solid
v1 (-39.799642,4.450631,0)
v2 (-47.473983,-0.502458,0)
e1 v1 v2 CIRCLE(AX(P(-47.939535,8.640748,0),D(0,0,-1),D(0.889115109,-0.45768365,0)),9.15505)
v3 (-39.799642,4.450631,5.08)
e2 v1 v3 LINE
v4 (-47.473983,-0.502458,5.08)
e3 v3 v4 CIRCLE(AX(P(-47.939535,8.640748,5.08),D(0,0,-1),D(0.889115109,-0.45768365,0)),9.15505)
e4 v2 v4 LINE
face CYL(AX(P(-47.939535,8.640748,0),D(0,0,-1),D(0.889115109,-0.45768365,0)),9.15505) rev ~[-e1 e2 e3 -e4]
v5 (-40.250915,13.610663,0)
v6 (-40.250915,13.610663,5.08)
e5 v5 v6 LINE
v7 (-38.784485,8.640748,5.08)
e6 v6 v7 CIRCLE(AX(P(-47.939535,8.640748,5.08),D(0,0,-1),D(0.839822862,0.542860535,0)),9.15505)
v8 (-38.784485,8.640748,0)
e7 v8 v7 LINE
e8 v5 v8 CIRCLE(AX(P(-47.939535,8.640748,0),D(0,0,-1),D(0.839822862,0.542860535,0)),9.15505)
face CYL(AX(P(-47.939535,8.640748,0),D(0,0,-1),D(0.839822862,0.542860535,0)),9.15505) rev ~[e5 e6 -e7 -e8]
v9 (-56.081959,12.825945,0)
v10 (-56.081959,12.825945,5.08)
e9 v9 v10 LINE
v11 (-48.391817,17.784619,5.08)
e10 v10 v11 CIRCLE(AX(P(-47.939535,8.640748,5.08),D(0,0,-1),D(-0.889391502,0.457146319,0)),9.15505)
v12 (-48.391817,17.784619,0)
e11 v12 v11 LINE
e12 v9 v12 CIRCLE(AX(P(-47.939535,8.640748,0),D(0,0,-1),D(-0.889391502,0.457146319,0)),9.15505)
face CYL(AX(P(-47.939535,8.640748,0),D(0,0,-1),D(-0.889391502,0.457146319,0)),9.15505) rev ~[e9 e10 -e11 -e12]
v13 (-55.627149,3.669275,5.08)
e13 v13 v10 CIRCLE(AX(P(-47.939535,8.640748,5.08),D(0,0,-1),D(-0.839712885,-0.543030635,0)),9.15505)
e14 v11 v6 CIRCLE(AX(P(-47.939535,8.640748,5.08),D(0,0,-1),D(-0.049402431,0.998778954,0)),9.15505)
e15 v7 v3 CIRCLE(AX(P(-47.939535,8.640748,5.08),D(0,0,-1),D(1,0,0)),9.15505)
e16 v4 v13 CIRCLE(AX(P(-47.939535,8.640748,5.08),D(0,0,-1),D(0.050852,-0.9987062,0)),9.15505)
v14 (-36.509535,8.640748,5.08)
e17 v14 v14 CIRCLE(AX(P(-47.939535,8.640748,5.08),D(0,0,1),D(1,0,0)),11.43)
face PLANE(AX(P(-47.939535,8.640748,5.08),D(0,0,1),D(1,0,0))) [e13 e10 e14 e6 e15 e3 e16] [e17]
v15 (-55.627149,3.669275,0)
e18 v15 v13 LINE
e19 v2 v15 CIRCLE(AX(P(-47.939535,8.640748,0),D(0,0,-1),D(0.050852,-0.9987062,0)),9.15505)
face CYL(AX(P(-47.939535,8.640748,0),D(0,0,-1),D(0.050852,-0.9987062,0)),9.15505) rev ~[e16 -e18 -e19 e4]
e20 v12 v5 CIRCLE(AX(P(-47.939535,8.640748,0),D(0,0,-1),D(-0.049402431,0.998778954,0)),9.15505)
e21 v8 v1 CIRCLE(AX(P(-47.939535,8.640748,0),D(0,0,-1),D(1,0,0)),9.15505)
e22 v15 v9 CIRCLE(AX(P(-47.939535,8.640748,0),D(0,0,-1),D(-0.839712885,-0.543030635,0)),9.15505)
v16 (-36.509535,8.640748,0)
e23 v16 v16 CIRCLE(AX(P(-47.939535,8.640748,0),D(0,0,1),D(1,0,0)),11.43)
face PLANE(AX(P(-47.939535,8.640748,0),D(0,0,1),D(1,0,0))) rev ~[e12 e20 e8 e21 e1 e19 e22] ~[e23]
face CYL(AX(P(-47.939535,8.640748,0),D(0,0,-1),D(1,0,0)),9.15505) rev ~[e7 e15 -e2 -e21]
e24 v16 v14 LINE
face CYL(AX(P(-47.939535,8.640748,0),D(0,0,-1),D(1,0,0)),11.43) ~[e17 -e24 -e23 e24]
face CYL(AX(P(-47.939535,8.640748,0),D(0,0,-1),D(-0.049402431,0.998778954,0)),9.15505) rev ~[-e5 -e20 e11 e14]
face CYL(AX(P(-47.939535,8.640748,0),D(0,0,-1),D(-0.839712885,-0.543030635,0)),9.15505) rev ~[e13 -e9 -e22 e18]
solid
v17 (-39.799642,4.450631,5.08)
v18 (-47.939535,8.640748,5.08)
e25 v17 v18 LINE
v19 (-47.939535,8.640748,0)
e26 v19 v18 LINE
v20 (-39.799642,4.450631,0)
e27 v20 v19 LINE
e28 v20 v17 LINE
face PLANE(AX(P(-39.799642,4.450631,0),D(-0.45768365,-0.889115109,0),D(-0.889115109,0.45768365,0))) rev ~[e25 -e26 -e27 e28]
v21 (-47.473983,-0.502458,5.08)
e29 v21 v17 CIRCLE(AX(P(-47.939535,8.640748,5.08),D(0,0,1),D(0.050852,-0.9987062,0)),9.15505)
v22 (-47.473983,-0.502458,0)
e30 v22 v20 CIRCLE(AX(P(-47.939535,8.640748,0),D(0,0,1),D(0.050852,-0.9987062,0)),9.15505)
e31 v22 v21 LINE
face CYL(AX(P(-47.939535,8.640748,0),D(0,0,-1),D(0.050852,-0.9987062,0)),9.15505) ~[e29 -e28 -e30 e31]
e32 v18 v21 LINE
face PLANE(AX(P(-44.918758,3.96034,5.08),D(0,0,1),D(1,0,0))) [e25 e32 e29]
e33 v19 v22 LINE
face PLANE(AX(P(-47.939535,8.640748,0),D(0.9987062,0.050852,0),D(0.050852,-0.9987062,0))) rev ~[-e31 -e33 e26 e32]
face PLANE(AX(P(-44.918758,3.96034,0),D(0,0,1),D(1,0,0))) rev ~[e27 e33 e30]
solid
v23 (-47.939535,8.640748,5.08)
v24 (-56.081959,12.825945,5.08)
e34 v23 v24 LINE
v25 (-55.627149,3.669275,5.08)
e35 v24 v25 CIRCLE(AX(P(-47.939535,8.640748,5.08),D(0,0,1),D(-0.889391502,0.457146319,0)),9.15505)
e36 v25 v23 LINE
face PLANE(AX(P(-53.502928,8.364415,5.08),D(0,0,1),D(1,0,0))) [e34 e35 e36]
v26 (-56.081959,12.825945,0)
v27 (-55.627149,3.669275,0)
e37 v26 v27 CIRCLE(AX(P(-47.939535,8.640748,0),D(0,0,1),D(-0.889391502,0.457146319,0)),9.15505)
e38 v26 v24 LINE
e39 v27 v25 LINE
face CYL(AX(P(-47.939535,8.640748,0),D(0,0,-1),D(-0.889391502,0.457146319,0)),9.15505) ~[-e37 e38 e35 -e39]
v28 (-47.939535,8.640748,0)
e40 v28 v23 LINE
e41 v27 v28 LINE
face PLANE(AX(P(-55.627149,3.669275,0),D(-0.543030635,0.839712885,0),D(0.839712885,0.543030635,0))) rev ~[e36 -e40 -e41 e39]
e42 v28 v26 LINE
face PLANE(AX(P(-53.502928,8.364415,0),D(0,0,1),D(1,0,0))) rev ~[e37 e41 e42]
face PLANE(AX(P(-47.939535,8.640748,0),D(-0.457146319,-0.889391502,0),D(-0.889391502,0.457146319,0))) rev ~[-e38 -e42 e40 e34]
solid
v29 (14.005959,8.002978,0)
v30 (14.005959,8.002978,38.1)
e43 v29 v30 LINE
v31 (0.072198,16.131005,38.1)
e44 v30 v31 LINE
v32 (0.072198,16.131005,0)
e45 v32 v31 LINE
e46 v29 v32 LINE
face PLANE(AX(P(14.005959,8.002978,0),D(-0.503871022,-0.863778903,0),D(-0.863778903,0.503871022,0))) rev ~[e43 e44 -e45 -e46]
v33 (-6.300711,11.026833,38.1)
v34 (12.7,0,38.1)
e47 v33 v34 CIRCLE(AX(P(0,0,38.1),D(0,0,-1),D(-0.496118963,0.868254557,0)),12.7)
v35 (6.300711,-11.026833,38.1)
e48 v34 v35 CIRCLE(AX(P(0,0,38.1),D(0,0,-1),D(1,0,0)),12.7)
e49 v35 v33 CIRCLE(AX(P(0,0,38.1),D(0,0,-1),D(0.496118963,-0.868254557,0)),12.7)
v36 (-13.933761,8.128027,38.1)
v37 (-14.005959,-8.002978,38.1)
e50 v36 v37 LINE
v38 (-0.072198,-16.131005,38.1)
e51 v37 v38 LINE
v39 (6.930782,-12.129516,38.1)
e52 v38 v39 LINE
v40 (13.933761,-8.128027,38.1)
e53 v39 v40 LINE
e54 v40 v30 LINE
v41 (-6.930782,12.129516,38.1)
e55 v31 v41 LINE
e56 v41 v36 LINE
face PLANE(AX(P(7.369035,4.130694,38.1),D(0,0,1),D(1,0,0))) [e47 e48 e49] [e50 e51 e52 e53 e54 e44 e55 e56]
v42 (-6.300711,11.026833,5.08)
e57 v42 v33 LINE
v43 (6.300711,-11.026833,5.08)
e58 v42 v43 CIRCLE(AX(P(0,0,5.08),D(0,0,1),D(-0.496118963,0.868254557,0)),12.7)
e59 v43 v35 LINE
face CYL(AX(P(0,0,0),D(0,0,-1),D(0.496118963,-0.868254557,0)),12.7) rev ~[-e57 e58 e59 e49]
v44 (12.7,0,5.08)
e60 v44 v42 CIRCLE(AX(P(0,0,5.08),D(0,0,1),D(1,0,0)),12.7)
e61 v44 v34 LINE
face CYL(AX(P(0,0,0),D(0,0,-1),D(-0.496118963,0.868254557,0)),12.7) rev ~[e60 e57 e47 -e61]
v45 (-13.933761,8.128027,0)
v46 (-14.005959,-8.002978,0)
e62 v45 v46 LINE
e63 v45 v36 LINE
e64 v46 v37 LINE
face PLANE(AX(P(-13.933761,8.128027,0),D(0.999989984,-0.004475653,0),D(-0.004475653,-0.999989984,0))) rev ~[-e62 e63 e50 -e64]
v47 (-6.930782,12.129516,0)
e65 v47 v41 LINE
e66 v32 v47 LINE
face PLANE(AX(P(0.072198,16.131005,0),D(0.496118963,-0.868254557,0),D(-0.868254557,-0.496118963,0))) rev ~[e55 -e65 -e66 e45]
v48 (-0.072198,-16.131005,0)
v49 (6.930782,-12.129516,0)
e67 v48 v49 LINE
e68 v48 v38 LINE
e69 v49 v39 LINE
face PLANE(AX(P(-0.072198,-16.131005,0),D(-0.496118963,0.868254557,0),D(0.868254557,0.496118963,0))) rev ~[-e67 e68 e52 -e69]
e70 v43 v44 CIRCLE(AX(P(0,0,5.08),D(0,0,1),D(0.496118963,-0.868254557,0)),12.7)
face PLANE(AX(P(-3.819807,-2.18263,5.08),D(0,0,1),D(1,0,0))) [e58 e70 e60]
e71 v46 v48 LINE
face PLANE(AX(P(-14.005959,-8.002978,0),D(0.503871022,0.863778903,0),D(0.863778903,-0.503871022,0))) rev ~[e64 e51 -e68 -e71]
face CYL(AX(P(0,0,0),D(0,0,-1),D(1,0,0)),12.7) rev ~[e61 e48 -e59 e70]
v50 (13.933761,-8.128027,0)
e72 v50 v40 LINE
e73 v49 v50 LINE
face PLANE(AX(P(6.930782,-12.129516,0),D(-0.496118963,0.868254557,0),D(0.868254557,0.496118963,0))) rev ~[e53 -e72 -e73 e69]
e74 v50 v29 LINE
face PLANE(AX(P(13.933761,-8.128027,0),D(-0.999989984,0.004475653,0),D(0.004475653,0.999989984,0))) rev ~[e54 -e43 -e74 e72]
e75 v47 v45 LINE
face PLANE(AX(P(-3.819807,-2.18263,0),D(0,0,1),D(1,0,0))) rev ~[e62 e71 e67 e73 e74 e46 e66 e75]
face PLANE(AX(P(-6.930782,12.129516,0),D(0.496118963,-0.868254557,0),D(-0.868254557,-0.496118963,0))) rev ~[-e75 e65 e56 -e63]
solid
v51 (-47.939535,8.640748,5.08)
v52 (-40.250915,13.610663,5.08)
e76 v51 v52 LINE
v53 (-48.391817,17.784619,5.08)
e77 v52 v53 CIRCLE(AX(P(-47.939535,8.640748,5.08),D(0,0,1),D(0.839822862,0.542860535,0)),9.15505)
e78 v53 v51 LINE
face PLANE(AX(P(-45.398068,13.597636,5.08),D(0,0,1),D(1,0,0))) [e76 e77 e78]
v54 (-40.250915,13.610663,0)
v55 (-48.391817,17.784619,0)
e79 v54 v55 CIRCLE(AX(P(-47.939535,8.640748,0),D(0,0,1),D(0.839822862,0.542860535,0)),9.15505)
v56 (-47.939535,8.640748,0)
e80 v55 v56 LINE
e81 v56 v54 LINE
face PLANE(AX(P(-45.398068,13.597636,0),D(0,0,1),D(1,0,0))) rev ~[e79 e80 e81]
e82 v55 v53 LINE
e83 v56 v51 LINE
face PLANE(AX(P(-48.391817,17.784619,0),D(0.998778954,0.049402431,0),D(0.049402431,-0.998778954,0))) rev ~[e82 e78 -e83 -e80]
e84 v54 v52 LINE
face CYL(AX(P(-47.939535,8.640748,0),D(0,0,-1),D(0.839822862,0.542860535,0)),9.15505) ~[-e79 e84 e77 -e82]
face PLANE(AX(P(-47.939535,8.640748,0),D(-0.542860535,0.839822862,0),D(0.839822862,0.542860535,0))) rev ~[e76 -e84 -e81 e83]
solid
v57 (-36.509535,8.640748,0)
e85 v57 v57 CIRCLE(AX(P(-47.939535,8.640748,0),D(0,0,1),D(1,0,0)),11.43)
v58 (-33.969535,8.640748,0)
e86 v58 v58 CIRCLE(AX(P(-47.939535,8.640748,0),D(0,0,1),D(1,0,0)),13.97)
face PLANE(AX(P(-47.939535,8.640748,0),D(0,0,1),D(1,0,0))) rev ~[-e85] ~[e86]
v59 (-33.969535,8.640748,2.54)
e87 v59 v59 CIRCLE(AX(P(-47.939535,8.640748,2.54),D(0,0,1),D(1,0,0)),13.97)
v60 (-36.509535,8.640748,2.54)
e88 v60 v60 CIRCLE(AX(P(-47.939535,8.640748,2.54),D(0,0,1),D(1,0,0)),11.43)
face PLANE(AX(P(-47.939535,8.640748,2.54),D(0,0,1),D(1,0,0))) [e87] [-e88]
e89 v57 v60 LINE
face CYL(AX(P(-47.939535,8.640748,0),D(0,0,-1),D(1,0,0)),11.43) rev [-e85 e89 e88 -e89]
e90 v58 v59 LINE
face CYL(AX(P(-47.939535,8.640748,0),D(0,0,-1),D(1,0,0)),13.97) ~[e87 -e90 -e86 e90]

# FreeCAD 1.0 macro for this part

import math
import FreeCAD as App
import Part
import Sketcher

V = App.Vector
Q = App.Units.Quantity

doc = App.newDocument("Part")
body = doc.addObject("PartDesign::Body", "Body")

sketch1 = doc.addObject("Sketcher::SketchObject", "Sketch")
body.addObject(sketch1)
sketch1.AttachmentSupport = (doc.XY_Plane, [""])
sketch1.MapMode = "FlatFace"
sketch1.addGeometry([
    Part.LineSegment(V(14, 8, 0), V(0, 16, 0)),
    Part.LineSegment(V(0, 16, 0), V(-7, 12, 0)),
    Part.LineSegment(V(-7, 12, 0), V(-14, 8, 0)),
    Part.LineSegment(V(-14, 8, 0), V(-14, -8, 0)),
    Part.LineSegment(V(-14, -8, 0), V(0, -16, 0)),
    Part.LineSegment(V(0, -16, 0), V(7, -12, 0)),
    Part.LineSegment(V(7, -12, 0), V(14, -8, 0)),
    Part.LineSegment(V(14, -8, 0), V(14, 8, 0)),
    Part.ArcOfCircle(Part.Circle(V(0, 0, 0), V(0, 0, 1), 13), math.radians(0), math.radians(120)),
    Part.ArcOfCircle(Part.Circle(V(0, 0, 0), V(0, 0, 1), 13), math.radians(-60), math.radians(0)),
    Part.ArcOfCircle(Part.Circle(V(0, 0, 0), V(0, 0, 1), 13), math.radians(120), math.radians(300)),
], False)
sketch1.addConstraint([
    Sketcher.Constraint("Coincident", 0, 2, 1, 1),
    Sketcher.Constraint("Coincident", 1, 2, 2, 1),
    Sketcher.Constraint("Coincident", 2, 2, 3, 1),
    Sketcher.Constraint("Coincident", 3, 2, 4, 1),
    Sketcher.Constraint("Coincident", 4, 2, 5, 1),
    Sketcher.Constraint("Coincident", 5, 2, 6, 1),
    Sketcher.Constraint("Coincident", 6, 2, 7, 1),
    Sketcher.Constraint("Coincident", 7, 2, 0, 1),
    Sketcher.Constraint("Tangent", 8, 1, 9, 2),
    Sketcher.Constraint("Tangent", 9, 1, 10, 2),
    Sketcher.Constraint("Tangent", 10, 1, 8, 2),
    Sketcher.Constraint("Coincident", 8, 3, -1, 1),
    Sketcher.Constraint("Symmetric", 0, 2, 4, 2, -1, 1),
    Sketcher.Constraint("Symmetric", 1, 2, 5, 2, -1, 1),
    Sketcher.Constraint("Symmetric", 2, 2, 6, 2, -1, 1),
    Sketcher.Constraint("Symmetric", 3, 2, 7, 2, -1, 1),
    Sketcher.Constraint("PointOnObject", 8, 1, -1),
    Sketcher.Constraint("Parallel", 1, 2),
    Sketcher.Constraint("Equal", 1, 2),
    Sketcher.Constraint("Equal", 0, 3),
    Sketcher.Constraint("Radius", 8, Q("0.5 in")),
    Sketcher.Constraint("DistanceX", 1, 2, -1, 1, Q("6.930782 mm")),
    Sketcher.Constraint("DistanceX", 2, 2, -1, 1, Q("13.933761 mm")),
    Sketcher.Constraint("DistanceX", 3, 2, -1, 1, Q("14.005959 mm")),
    Sketcher.Constraint("DistanceX", -1, 1, 9, 1, Q("6.300711 mm")),
    Sketcher.Constraint("DistanceX", 10, 1, -1, 1, Q("6.300711 mm")),
    Sketcher.Constraint("DistanceY", 1, 2, 0, 2, Q("4.001489 mm")),
    Sketcher.Constraint("DistanceY", 5, 2, 3, 2, Q("4.126539 mm")),
])
pad1 = doc.addObject("PartDesign::Pad", "Pad")
body.addObject(pad1)
pad1.Profile = sketch1
pad1.Length = Q("1.5 in")

sketch2 = doc.addObject("Sketcher::SketchObject", "Sketch001")
body.addObject(sketch2)
sketch2.AttachmentSupport = (doc.XY_Plane, [""])
sketch2.MapMode = "FlatFace"
sketch2.addGeometry([
    Part.ArcOfCircle(Part.Circle(V(0, 0, 0), V(0, 0, 1), 13), math.radians(120), math.radians(300)),
    Part.ArcOfCircle(Part.Circle(V(0, 0, 0), V(0, 0, 1), 13), math.radians(-60), math.radians(0)),
    Part.ArcOfCircle(Part.Circle(V(0, 0, 0), V(0, 0, 1), 13), math.radians(0), math.radians(120)),
], False)
sketch2.addConstraint([
    Sketcher.Constraint("Tangent", 0, 2, 1, 1),
    Sketcher.Constraint("Tangent", 1, 2, 2, 1),
    Sketcher.Constraint("Tangent", 2, 2, 0, 1),
    Sketcher.Constraint("Coincident", 0, 3, -1, 1),
    Sketcher.Constraint("PointOnObject", 1, 2, -1),
    Sketcher.Constraint("Radius", 0, Q("0.5 in")),
    Sketcher.Constraint("DistanceX", -1, 1, 0, 2, Q("6.300711 mm")),
    Sketcher.Constraint("DistanceX", 2, 2, -1, 1, Q("6.300711 mm")),
])
pad2 = doc.addObject("PartDesign::Pad", "Pad001")
body.addObject(pad2)
pad2.Profile = sketch2
pad2.Length = Q("0.2 in")
body2 = doc.addObject("PartDesign::Body", "Body001")

sketch3 = doc.addObject("Sketcher::SketchObject", "Sketch002")
body2.addObject(sketch3)
sketch3.AttachmentSupport = (doc.getObject("XY_Plane001"), [""])
sketch3.MapMode = "FlatFace"
sketch3.addGeometry([
    Part.Circle(V(-48, 9, 0), V(0, 0, 1), 14),
    Part.Circle(V(-48, 9, 0), V(0, 0, 1), 11),
], False)
sketch3.addConstraint([
    Sketcher.Constraint("Coincident", 1, 3, 0, 3),
    Sketcher.Constraint("Diameter", 0, Q("1.1 in")),
    Sketcher.Constraint("Diameter", 1, Q("0.9 in")),
    Sketcher.Constraint("DistanceX", 0, 3, -1, 1, Q("47.939535 mm")),
    Sketcher.Constraint("DistanceY", -1, 1, 0, 3, Q("8.640748 mm")),
])
pad3 = doc.addObject("PartDesign::Pad", "Pad002")
body2.addObject(pad3)
pad3.Profile = sketch3
pad3.Length = Q("0.1 in")
body3 = doc.addObject("PartDesign::Body", "Body002")

sketch4 = doc.addObject("Sketcher::SketchObject", "Sketch003")
body3.addObject(sketch4)
sketch4.AttachmentSupport = (doc.getObject("XY_Plane002"), [""])
sketch4.MapMode = "FlatFace"
sketch4.addGeometry([
    Part.LineSegment(V(-48, 9, 0), V(-40, 14, 0)),
    Part.ArcOfCircle(Part.Circle(V(-48, 9, 0), V(0, 0, 1), 9), math.radians(33), math.radians(93)),
    Part.LineSegment(V(-48, 18, 0), V(-48, 9, 0)),
], False)
sketch4.addConstraint([
    Sketcher.Constraint("Coincident", 0, 2, 1, 1),
    Sketcher.Constraint("Coincident", 1, 2, 2, 1),
    Sketcher.Constraint("Coincident", 2, 2, 0, 1),
    Sketcher.Constraint("Coincident", 2, 2, 1, 3),
    Sketcher.Constraint("Radius", 1, Q("9.15505 mm")),
    Sketcher.Constraint("DistanceY", -1, 1, 1, 2, Q("17.784619 mm")),
    Sketcher.Constraint("DistanceX", 1, 3, 0, 2, Q("7.688621 mm")),
    Sketcher.Constraint("DistanceX", 1, 2, 1, 3, Q("0.452282 mm")),
    Sketcher.Constraint("DistanceX", 1, 3, -1, 1, Q("47.939535 mm")),
])
pad4 = doc.addObject("PartDesign::Pad", "Pad003")
body3.addObject(pad4)
pad4.Profile = sketch4
pad4.Length = Q("0.2 in")
body4 = doc.addObject("PartDesign::Body", "Body003")

sketch5 = doc.addObject("Sketcher::SketchObject", "Sketch004")
body4.addObject(sketch5)
sketch5.AttachmentSupport = (doc.getObject("XY_Plane003"), [""])
sketch5.MapMode = "FlatFace"
sketch5.addGeometry([
    Part.LineSegment(V(-56, 4, 0), V(-48, 9, 0)),
    Part.LineSegment(V(-48, 9, 0), V(-56, 13, 0)),
    Part.ArcOfCircle(Part.Circle(V(-48, 9, 0), V(0, 0, 1), 9), math.radians(153), math.radians(213)),
], False)
sketch5.addConstraint([
    Sketcher.Constraint("Coincident", 0, 2, 1, 1),
    Sketcher.Constraint("Coincident", 1, 2, 2, 1),
    Sketcher.Constraint("Coincident", 2, 2, 0, 1),
    Sketcher.Constraint("Coincident", 0, 2, 2, 3),
    Sketcher.Constraint("Radius", 2, Q("9.15505 mm")),
    Sketcher.Constraint("DistanceX", 1, 2, -1, 1, Q("56.081959 mm")),
    Sketcher.Constraint("DistanceX", 2, 2, -1, 1, Q("55.627149 mm")),
    Sketcher.Constraint("DistanceY", 2, 2, 1, 2, Q("9.15667 mm")),
    Sketcher.Constraint("DistanceY", -1, 1, 2, 3, Q("8.640748 mm")),
])
pad5 = doc.addObject("PartDesign::Pad", "Pad004")
body4.addObject(pad5)
pad5.Profile = sketch5
pad5.Length = Q("0.2 in")
body5 = doc.addObject("PartDesign::Body", "Body004")

sketch6 = doc.addObject("Sketcher::SketchObject", "Sketch005")
body5.addObject(sketch6)
sketch6.AttachmentSupport = (doc.getObject("XY_Plane004"), [""])
sketch6.MapMode = "FlatFace"
sketch6.addGeometry([
    Part.ArcOfCircle(Part.Circle(V(-48, 9, 0), V(0, 0, 1), 9), math.radians(-87), math.radians(-27)),
    Part.LineSegment(V(-40, 4, 0), V(-48, 9, 0)),
    Part.LineSegment(V(-48, 9, 0), V(-47, -1, 0)),
], False)
sketch6.addConstraint([
    Sketcher.Constraint("Coincident", 0, 2, 1, 1),
    Sketcher.Constraint("Coincident", 1, 2, 2, 1),
    Sketcher.Constraint("Coincident", 2, 2, 0, 1),
    Sketcher.Constraint("Coincident", 1, 2, 0, 3),
    Sketcher.Constraint("Radius", 0, Q("9.15505 mm")),
    Sketcher.Constraint("DistanceX", 0, 2, -1, 1, Q("39.799642 mm")),
    Sketcher.Constraint("DistanceY", -1, 1, 0, 2, Q("4.450631 mm")),
    Sketcher.Constraint("DistanceX", 2, 2, 0, 2, Q("7.674341 mm")),
    Sketcher.Constraint("DistanceY", 2, 2, 0, 2, Q("4.953089 mm")),
])
pad6 = doc.addObject("PartDesign::Pad", "Pad005")
body5.addObject(pad6)
pad6.Profile = sketch6
pad6.Length = Q("0.2 in")
body6 = doc.addObject("PartDesign::Body", "Body005")

sketch7 = doc.addObject("Sketcher::SketchObject", "Sketch006")
body6.addObject(sketch7)
sketch7.AttachmentSupport = (doc.getObject("XY_Plane005"), [""])
sketch7.MapMode = "FlatFace"
sketch7.addGeometry([
    Part.Circle(V(-47.9, 8.6, 0), V(0, 0, 1), 11.4),
    Part.ArcOfCircle(Part.Circle(V(-47.9, 8.6, 0), V(0, 0, 1), 9.2), math.radians(33), math.radians(93)),
    Part.ArcOfCircle(Part.Circle(V(-47.9, 8.6, 0), V(0, 0, 1), 9.2), math.radians(0), math.radians(33)),
    Part.ArcOfCircle(Part.Circle(V(-47.9, 8.6, 0), V(0, 0, 1), 9.2), math.radians(-27), math.radians(0)),
    Part.ArcOfCircle(Part.Circle(V(-47.9, 8.6, 0), V(0, 0, 1), 9.2), math.radians(-87), math.radians(-27)),
    Part.ArcOfCircle(Part.Circle(V(-47.9, 8.6, 0), V(0, 0, 1), 9.2), math.radians(-147), math.radians(-87)),
    Part.ArcOfCircle(Part.Circle(V(-47.9, 8.6, 0), V(0, 0, 1), 9.2), math.radians(153), math.radians(213)),
    Part.ArcOfCircle(Part.Circle(V(-47.9, 8.6, 0), V(0, 0, 1), 9.2), math.radians(93), math.radians(153)),
], False)
sketch7.addConstraint([
    Sketcher.Constraint("Tangent", 1, 1, 2, 2),
    Sketcher.Constraint("Tangent", 2, 1, 3, 2),
    Sketcher.Constraint("Tangent", 3, 1, 4, 2),
    Sketcher.Constraint("Tangent", 4, 1, 5, 2),
    Sketcher.Constraint("Tangent", 5, 1, 6, 2),
    Sketcher.Constraint("Tangent", 6, 1, 7, 2),
    Sketcher.Constraint("Tangent", 7, 1, 1, 2),
    Sketcher.Constraint("Coincident", 1, 3, 0, 3),
    Sketcher.Constraint("Coincident", 3, 3, 0, 3),
    Sketcher.Constraint("Coincident", 5, 3, 0, 3),
    Sketcher.Constraint("Horizontal", 7, 3, 2, 1),
    Sketcher.Constraint("Diameter", 0, Q("0.9 in")),
    Sketcher.Constraint("Radius", 1, Q("9.15505 mm")),
    Sketcher.Constraint("DistanceX", 3, 1, -1, 1, Q("39.799642 mm")),
    Sketcher.Constraint("DistanceY", -1, 1, 3, 1, Q("4.450631 mm")),
    Sketcher.Constraint("DistanceX", 5, 1, -1, 1, Q("55.627149 mm")),
    Sketcher.Constraint("DistanceX", 6, 1, -1, 1, Q("56.081959 mm")),
    Sketcher.Constraint("DistanceY", -1, 1, 7, 1, Q("17.784619 mm")),
    Sketcher.Constraint("DistanceX", 1, 3, 1, 1, Q("7.688621 mm")),
    Sketcher.Constraint("DistanceX", 4, 1, 3, 1, Q("7.674341 mm")),
    Sketcher.Constraint("DistanceY", 4, 1, 3, 1, Q("4.953089 mm")),
])
pad7 = doc.addObject("PartDesign::Pad", "Pad006")
body6.addObject(pad7)
pad7.Profile = sketch7
pad7.Length = Q("0.2 in")

doc.recompute()
